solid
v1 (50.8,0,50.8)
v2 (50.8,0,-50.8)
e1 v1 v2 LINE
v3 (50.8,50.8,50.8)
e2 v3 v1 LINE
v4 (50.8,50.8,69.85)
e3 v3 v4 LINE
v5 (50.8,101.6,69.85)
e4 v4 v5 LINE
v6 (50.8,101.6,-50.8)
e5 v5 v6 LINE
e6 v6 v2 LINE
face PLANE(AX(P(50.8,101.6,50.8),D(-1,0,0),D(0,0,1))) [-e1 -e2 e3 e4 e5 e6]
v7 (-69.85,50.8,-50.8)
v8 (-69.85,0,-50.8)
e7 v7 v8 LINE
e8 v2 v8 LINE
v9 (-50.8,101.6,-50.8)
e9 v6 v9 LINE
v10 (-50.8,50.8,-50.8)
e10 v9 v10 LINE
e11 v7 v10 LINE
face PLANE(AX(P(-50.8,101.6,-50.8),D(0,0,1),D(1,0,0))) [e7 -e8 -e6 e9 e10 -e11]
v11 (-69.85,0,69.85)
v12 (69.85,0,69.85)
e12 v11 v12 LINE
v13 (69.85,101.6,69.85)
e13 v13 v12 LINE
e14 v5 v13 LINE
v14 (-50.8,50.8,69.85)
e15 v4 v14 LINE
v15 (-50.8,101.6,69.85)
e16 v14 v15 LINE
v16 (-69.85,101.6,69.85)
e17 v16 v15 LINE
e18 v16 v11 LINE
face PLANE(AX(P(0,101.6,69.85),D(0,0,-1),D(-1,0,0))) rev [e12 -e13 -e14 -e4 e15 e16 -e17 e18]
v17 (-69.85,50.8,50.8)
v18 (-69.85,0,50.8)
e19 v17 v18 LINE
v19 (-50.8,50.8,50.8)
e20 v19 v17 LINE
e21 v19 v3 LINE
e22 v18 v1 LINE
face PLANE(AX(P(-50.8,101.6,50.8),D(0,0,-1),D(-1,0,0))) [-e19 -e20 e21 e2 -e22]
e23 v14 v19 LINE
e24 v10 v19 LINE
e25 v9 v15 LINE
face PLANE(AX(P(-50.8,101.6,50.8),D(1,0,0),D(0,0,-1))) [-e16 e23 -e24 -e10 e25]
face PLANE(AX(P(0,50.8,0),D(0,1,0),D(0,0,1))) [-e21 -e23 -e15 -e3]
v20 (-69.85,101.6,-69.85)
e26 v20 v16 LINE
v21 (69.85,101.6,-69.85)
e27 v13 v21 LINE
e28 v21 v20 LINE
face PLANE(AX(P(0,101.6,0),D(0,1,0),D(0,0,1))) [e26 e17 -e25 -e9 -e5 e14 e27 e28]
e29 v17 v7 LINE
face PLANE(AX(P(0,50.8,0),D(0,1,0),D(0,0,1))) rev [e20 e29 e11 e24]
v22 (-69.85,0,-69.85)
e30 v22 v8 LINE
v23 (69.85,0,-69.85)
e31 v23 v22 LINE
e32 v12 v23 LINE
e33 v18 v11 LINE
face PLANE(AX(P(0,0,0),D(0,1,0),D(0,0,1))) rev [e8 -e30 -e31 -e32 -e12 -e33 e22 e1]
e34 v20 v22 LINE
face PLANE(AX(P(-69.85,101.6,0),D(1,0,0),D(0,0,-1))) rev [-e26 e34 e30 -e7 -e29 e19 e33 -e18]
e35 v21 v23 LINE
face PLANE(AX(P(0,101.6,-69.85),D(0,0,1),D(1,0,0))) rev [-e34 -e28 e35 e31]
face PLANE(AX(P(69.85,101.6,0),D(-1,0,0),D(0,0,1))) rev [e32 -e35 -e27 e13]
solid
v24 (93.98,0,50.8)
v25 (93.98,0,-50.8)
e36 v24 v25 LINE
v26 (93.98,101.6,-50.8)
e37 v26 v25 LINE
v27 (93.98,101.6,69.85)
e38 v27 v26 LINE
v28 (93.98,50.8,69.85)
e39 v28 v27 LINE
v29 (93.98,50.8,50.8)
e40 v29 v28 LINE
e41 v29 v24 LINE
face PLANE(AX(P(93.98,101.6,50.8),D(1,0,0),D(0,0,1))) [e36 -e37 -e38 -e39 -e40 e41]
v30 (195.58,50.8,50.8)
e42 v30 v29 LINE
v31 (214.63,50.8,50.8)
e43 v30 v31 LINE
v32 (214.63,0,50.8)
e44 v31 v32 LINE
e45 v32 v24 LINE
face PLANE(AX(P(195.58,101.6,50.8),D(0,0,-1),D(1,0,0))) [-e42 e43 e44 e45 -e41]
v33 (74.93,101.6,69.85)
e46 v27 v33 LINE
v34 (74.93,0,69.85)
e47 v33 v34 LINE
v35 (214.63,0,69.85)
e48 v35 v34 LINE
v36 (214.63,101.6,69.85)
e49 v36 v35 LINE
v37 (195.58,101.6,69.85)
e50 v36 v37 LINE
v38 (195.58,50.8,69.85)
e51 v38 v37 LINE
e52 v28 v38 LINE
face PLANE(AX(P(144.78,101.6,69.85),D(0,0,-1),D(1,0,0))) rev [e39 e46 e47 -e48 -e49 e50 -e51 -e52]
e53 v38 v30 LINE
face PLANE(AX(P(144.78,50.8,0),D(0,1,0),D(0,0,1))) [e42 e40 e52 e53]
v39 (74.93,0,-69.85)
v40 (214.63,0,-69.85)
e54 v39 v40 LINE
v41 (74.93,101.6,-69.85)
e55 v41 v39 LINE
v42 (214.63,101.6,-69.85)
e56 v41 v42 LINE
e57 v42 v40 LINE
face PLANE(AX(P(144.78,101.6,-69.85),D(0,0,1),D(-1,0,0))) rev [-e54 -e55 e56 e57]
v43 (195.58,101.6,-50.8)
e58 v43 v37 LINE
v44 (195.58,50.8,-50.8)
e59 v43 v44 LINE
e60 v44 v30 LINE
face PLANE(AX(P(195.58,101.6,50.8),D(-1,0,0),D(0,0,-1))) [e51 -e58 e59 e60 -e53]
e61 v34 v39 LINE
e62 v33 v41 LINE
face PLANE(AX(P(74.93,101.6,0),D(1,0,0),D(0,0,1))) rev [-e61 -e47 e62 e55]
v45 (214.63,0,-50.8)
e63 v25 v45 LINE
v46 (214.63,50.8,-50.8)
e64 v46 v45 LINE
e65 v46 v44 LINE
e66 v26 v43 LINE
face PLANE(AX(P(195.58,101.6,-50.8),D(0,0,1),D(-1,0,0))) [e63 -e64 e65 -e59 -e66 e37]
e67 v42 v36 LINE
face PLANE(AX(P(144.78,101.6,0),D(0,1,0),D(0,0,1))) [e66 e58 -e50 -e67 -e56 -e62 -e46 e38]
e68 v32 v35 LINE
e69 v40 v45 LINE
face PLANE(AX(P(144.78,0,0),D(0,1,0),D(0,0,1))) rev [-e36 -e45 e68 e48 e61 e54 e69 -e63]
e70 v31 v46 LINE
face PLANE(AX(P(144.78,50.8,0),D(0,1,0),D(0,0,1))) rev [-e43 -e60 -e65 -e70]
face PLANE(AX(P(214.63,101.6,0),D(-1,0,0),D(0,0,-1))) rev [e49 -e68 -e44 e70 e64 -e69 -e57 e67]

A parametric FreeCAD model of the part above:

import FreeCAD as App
import Part
import Sketcher

V = App.Vector
Q = App.Units.Quantity


def add_polygon(sketch, points):
    """Adds a closed chain of lines whose ends are joined by coincident constraints."""
    first, n = sketch.GeometryCount, len(points)
    for a, b in zip(points, points[1:] + points[:1]):
        sketch.addGeometry(Part.LineSegment(App.Vector(*a, 0), App.Vector(*b, 0)), False)
    for i in range(n):
        sketch.addConstraint(Sketcher.Constraint("Coincident", first + i, 2, first + (i + 1) % n, 1))

doc = App.newDocument("Part")
body = doc.addObject("PartDesign::Body", "Body")

# Sketch on XZ plane
sketch1 = body.newObject("Sketcher::SketchObject", "Sketch")
sketch1.AttachmentSupport = (doc.getObject("XZ_Plane"), [""])
sketch1.MapMode = "FlatFace"
add_polygon(sketch1, [(-70, -70), (-70, 70), (70, 70), (70, -70)])  # lines 0-3
add_polygon(sketch1, [(51, 51), (-51, 51), (-51, -51), (51, -51)])  # lines 4-7
sketch1.addConstraint([
    Sketcher.Constraint("Vertical", 0),
    Sketcher.Constraint("Horizontal", 1),
    Sketcher.Constraint("Vertical", 2),
    Sketcher.Constraint("Horizontal", 3),
    Sketcher.Constraint("Horizontal", 4),
    Sketcher.Constraint("Vertical", 5),
    Sketcher.Constraint("Horizontal", 6),
    Sketcher.Constraint("Vertical", 7),
    Sketcher.Constraint("Symmetric", 0, 2, 2, 2, -1, 1),
    Sketcher.Constraint("Symmetric", 4, 2, 6, 2, -1, 1),
    Sketcher.Constraint("Equal", 3, 0),
    Sketcher.Constraint("Equal", 6, 5),
    Sketcher.Constraint("DistanceX", 4, 2, 4, 1, Q("4 in")),
    Sketcher.Constraint("DistanceX", 1, 1, 1, 2, Q("5.5 in")),
])
pad1 = body.newObject("PartDesign::Pad", "Pad")
pad1.Profile = sketch1
pad1.Length = Q("4 in")
pad1.Reversed = True

# Sketch on XZ plane
sketch2 = body.newObject("Sketcher::SketchObject", "Sketch001")
sketch2.AttachmentSupport = (doc.getObject("XZ_Plane"), [""])
sketch2.MapMode = "FlatFace"
sketch2.AttachmentOffset = App.Placement(V(0, 0, -2 * 25.4), App.Rotation())
add_polygon(sketch2, [(-51, 51), (-51, 70), (51, 70), (51, 51)])  # lines 0-3
sketch2.addConstraint([
    Sketcher.Constraint("Vertical", 0),
    Sketcher.Constraint("Horizontal", 1),
    Sketcher.Constraint("Vertical", 2),
    Sketcher.Constraint("Horizontal", 3),
    Sketcher.Constraint("DistanceX", 1, 1, 1, 2, Q("4 in")),
    Sketcher.Constraint("DistanceX", 0, 2, -1, 1, Q("2 in")),
    Sketcher.Constraint("DistanceY", -1, 1, 2, 2, Q("2 in")),
    Sketcher.Constraint("DistanceY", 0, 1, 0, 2, Q("0.75 in")),
])
pocket1 = body.newObject("PartDesign::Pocket", "Pocket")
pocket1.Profile = sketch2
pocket1.Length = Q("2 in")

# Sketch on XZ plane
sketch3 = body.newObject("Sketcher::SketchObject", "Sketch002")
sketch3.AttachmentSupport = (doc.getObject("XZ_Plane"), [""])
sketch3.MapMode = "FlatFace"
sketch3.AttachmentOffset = App.Placement(V(0, 0, -2 * 25.4), App.Rotation())
add_polygon(sketch3, [(-70, 51), (-70, -51), (-51, -51), (-51, 51)])  # lines 0-3
sketch3.addConstraint([
    Sketcher.Constraint("Vertical", 0),
    Sketcher.Constraint("Horizontal", 1),
    Sketcher.Constraint("Vertical", 2),
    Sketcher.Constraint("Horizontal", 3),
    Sketcher.Constraint("DistanceY", 0, 2, 0, 1, Q("4 in")),
    Sketcher.Constraint("DistanceY", 0, 2, -1, 1, Q("2 in")),
    Sketcher.Constraint("DistanceX", 1, 2, -1, 1, Q("2 in")),
    Sketcher.Constraint("DistanceX", 1, 1, 1, 2, Q("0.75 in")),
])
pocket2 = body.newObject("PartDesign::Pocket", "Pocket001")
pocket2.Profile = sketch3
pocket2.Length = Q("2 in")
pocket2.Reversed = True
body2 = doc.addObject("PartDesign::Body", "Body001")
doc.recompute()

mirroring = doc.addObject("Part::Mirroring", "Mirroring")
mirroring.Source = body
mirroring.Base = V(72.39, 0, 0)
mirroring.Normal = V(1, 0, 0)
body2.BaseFeature = mirroring
doc.recompute()
mirroring.Visibility = False

doc.recompute()
